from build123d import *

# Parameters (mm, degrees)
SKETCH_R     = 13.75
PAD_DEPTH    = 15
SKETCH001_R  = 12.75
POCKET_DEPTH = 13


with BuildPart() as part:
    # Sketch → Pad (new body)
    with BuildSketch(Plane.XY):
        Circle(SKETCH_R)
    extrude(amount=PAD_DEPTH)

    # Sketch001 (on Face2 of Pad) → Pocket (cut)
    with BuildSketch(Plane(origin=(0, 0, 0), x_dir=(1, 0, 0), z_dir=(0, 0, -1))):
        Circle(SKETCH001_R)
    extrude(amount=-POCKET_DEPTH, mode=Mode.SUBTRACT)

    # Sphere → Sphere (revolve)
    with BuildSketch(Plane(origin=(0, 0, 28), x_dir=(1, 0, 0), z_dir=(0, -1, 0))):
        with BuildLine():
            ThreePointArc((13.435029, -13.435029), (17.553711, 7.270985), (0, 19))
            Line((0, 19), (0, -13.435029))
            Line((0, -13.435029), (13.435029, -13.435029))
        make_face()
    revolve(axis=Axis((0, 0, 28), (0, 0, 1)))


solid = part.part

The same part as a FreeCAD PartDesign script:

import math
import FreeCAD as App
import Part
import Sketcher
from FreeCAD import Vector
Q = App.Units.Quantity

doc = App.newDocument("Part")
body = doc.addObject("PartDesign::Body", "Body")

sketch1 = body.newObject("Sketcher::SketchObject", "Sketch")
sketch1.AttachmentSupport = (doc.getObject("XY_Plane"), [""])
sketch1.MapMode = "FlatFace"
sketch1.addGeometry(Part.Circle(Vector(0, 0, 0), Vector(0, 0, 1), 14), False)
sketch1.addConstraint([
    Sketcher.Constraint("Coincident", 0, 3, -1, 1),
    Sketcher.Constraint("Diameter", 0, Q("27.5 mm")),
])
pad1 = body.newObject("PartDesign::Pad", "Pad")
pad1.Profile = sketch1
pad1.Length = 15

sketch2 = body.newObject("Sketcher::SketchObject", "Sketch001")
sketch2.AttachmentSupport = (doc.getObject("XY_Plane"), [""])
sketch2.MapMode = "FlatFace"
sketch2.addGeometry(Part.Circle(Vector(0, 0, 0), Vector(0, 0, 1), 13), False)
sketch2.addConstraint([
    Sketcher.Constraint("Coincident", 0, 3, -1, 1),
    Sketcher.Constraint("Diameter", 0, Q("25.5 mm")),
])
pocket1 = body.newObject("PartDesign::Pocket", "Pocket")
pocket1.Profile = sketch2
pocket1.Length = 13
pocket1.Reversed = True

sketch3 = body.newObject("Sketcher::SketchObject", "Sketch002")
sketch3.AttachmentSupport = (doc.getObject("XZ_Plane"), [""])
sketch3.MapMode = "FlatFace"
sketch3.addGeometry([
    Part.ArcOfCircle(Part.Circle(Vector(0, 28, 0), Vector(0, 0, 1), 19), math.radians(-45), math.radians(90)),
    Part.LineSegment(Vector(0, 47, 0), Vector(0, 15, 0)),
    Part.LineSegment(Vector(0, 15, 0), Vector(13, 15, 0)),
], False)
sketch3.addConstraint([
    Sketcher.Constraint("Coincident", 0, 2, 1, 1),
    Sketcher.Constraint("Coincident", 1, 2, 2, 1),
    Sketcher.Constraint("Coincident", 2, 2, 0, 1),
    Sketcher.Constraint("Vertical", 1),
    Sketcher.Constraint("Horizontal", 2),
    Sketcher.Constraint("PointOnObject", 0, 3, -2),
    Sketcher.Constraint("PointOnObject", 0, 2, -2),
    Sketcher.Constraint("Radius", 0, Q("19 mm")),
    Sketcher.Constraint("DistanceY", -1, 1, 0, 3, Q("28 mm")),
    Sketcher.Constraint("DistanceX", 2, 1, 2, 2, Q("13.435029 mm")),
])
revolution = body.newObject("PartDesign::Revolution", "Revolution")
revolution.Profile = sketch3
revolution.ReferenceAxis = (sketch3, ["V_Axis"])
revolution.Angle = 360

doc.recompute()
